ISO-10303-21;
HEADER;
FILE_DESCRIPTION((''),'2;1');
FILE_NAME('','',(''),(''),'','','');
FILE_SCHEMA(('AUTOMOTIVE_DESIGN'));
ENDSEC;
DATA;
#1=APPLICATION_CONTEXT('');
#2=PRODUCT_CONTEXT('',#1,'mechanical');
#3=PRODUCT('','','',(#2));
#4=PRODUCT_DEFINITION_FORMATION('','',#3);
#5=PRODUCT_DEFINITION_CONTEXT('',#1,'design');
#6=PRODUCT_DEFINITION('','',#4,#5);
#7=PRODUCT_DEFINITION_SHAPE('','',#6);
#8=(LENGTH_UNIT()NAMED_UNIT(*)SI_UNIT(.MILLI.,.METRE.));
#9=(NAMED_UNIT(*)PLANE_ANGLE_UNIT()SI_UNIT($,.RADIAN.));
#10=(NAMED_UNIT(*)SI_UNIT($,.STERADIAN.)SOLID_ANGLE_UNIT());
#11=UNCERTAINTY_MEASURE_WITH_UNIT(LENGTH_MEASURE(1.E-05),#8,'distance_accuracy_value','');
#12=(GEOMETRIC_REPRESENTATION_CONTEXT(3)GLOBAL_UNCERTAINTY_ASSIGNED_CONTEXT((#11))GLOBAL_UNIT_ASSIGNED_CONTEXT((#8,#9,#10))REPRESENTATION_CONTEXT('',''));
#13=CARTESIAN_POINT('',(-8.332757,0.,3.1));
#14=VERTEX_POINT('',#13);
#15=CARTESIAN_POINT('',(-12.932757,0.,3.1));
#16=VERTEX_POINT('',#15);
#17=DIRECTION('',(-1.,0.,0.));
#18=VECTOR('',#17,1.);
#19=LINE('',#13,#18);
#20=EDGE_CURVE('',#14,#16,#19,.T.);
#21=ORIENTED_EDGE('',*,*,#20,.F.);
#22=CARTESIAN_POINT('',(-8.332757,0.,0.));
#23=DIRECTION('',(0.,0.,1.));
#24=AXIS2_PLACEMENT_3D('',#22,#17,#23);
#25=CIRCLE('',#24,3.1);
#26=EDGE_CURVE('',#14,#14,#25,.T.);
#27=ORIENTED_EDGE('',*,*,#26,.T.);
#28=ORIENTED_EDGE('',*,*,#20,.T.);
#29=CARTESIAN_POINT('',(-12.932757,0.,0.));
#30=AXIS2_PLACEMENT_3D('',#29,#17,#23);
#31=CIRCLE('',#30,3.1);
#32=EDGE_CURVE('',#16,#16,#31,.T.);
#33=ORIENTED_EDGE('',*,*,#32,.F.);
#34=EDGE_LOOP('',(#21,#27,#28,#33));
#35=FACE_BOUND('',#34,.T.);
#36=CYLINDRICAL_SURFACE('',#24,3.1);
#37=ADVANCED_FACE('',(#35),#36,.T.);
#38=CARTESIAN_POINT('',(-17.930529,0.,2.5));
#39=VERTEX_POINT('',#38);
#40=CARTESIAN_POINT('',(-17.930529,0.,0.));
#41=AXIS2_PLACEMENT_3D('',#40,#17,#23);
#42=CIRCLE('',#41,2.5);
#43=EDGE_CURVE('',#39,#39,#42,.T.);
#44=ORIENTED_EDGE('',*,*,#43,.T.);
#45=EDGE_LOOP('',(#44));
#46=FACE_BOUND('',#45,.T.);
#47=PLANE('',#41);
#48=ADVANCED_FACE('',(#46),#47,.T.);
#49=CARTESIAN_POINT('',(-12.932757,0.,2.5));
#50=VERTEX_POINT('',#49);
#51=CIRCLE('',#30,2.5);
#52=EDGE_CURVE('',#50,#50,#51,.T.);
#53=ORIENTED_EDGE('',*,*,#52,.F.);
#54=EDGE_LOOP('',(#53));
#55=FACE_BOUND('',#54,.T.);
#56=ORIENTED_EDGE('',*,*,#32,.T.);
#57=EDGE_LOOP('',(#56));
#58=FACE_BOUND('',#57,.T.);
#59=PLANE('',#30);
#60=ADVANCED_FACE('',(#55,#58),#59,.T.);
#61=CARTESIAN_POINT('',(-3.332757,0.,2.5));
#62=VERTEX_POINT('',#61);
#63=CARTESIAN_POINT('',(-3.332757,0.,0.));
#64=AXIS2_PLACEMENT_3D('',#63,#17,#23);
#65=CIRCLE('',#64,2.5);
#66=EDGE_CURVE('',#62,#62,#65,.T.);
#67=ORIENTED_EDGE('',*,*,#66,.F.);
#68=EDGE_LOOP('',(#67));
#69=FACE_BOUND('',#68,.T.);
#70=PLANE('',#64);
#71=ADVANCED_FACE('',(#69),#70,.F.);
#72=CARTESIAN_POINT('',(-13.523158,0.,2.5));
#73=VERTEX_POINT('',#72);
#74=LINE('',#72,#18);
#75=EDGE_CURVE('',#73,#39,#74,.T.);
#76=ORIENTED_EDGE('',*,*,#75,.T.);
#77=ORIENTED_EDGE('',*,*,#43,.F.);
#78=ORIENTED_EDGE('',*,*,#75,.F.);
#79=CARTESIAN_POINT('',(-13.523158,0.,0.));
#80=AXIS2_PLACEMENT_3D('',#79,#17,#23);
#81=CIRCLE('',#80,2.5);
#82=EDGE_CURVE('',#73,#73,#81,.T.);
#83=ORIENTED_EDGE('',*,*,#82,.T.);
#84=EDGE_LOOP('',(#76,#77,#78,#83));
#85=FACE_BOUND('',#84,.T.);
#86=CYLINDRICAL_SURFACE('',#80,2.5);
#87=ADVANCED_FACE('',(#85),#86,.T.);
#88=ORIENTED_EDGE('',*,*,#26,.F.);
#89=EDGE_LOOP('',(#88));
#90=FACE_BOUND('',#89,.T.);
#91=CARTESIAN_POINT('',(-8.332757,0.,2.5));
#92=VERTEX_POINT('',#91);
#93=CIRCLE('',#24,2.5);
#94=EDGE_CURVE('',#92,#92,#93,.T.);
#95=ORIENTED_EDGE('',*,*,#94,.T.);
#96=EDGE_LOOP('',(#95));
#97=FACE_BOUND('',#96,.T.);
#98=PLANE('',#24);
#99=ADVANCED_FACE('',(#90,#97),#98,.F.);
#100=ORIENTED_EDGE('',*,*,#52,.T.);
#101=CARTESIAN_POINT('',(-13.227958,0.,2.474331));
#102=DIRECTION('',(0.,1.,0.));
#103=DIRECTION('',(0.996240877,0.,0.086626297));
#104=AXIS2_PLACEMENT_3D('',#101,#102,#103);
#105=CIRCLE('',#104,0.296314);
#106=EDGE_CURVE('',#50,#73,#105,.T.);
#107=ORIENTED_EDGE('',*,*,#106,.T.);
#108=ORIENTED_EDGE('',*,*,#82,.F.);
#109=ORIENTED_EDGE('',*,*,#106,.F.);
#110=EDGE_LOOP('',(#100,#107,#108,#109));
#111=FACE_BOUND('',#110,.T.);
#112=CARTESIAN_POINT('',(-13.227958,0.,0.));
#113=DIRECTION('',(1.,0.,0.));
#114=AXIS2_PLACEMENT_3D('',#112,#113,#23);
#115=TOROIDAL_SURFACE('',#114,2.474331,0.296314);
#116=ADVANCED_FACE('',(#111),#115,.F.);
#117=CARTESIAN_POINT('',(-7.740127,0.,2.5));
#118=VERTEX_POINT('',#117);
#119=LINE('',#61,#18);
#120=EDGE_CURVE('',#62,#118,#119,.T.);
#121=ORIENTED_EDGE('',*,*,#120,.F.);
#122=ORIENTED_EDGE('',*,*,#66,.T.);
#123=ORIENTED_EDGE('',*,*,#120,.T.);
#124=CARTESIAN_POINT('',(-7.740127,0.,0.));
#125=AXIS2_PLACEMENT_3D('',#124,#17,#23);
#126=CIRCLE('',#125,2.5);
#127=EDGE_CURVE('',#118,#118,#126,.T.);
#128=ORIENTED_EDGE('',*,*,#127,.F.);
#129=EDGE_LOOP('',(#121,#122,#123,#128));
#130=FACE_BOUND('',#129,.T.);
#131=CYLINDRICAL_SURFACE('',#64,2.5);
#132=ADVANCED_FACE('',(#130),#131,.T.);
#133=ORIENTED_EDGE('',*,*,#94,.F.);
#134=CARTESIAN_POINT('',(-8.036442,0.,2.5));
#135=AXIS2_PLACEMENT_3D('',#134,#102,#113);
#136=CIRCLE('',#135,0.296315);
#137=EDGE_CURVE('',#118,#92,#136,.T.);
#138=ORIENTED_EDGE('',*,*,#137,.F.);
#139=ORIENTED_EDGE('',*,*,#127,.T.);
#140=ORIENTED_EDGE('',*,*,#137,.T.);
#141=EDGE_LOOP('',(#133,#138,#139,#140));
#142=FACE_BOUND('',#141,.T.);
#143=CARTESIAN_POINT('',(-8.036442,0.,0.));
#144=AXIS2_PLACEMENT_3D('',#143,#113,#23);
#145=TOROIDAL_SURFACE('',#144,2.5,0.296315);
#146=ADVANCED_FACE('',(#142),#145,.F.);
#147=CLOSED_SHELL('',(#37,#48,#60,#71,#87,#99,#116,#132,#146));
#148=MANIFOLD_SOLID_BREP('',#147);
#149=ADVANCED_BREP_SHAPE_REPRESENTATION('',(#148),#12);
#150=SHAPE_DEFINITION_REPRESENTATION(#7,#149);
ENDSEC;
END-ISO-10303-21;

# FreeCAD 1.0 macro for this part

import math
import FreeCAD as App
import Part
import Sketcher

V = App.Vector
Q = App.Units.Quantity

doc = App.newDocument("Part")
params = doc.addObject("Spreadsheet::Sheet", "Params")
for row, (alias, value) in enumerate([
    ("sketch1_width", "4.6 mm"),
    ("sketch1_height", "2.5 mm"),
    ("sketch1_height2", "0.6 mm"),
    ("revolution_angle", "360 deg"),
], start=1):
    params.set(f"A{row}", alias)
    params.set(f"B{row}", "=" + value)
    params.setAlias(f"B{row}", alias)

body = doc.addObject("PartDesign::Body", "Body")

# Sketch on XZ plane
sketch1 = body.newObject("Sketcher::SketchObject", "Sketch")
sketch1.AttachmentSupport = (doc.getObject("XZ_Plane"), [""])
sketch1.MapMode = "FlatFace"
sketch1.addGeometry([
    Part.LineSegment(V(-13.52, 2.5, 0), V(-17.93, 2.5, 0)),  # 0
    Part.LineSegment(V(-17.93, 2.5, 0), V(-17.93, 0, 0)),  # 1
    Part.LineSegment(V(-17.93, 0, 0), V(-3.33, 0, 0)),  # 2
    Part.LineSegment(V(-3.33, 0, 0), V(-3.33, 2.5, 0)),  # 3
    Part.LineSegment(V(-3.33, 2.5, 0), V(-7.74, 2.5, 0)),  # 4
    Part.ArcOfCircle(Part.Circle(V(-8.04, 2.5, 0), V(0, 0, 1), 0.3), math.radians(180), math.radians(360)),  # 5
    Part.LineSegment(V(-8.33, 2.5, 0), V(-8.33, 3.1, 0)),  # 6
    Part.LineSegment(V(-8.33, 3.1, 0), V(-12.93, 3.1, 0)),  # 7
    Part.LineSegment(V(-12.93, 3.1, 0), V(-12.93, 2.5, 0)),  # 8
    Part.ArcOfCircle(Part.Circle(V(-13.23, 2.47, 0), V(0, 0, 1), 0.3), math.radians(175), math.radians(365)),  # 9
], False)
sketch1.addConstraint([
    Sketcher.Constraint("Coincident", 0, 2, 1, 1),
    Sketcher.Constraint("Coincident", 1, 2, 2, 1),
    Sketcher.Constraint("Coincident", 2, 2, 3, 1),
    Sketcher.Constraint("Coincident", 3, 2, 4, 1),
    Sketcher.Constraint("Coincident", 4, 2, 5, 2),
    Sketcher.Constraint("Tangent", 5, 1, 6, 1),
    Sketcher.Constraint("Coincident", 6, 2, 7, 1),
    Sketcher.Constraint("Coincident", 7, 2, 8, 1),
    Sketcher.Constraint("Coincident", 8, 2, 9, 2),
    Sketcher.Constraint("Coincident", 9, 1, 0, 1),
    Sketcher.Constraint("Horizontal", 0),
    Sketcher.Constraint("Vertical", 1),
    Sketcher.Constraint("Horizontal", 2),
    Sketcher.Constraint("Vertical", 3),
    Sketcher.Constraint("Horizontal", 4),
    Sketcher.Constraint("Vertical", 6),
    Sketcher.Constraint("Horizontal", 7),
    Sketcher.Constraint("Vertical", 8),
    Sketcher.Constraint("Equal", 5, 9),
    Sketcher.Constraint("PointOnObject", 1, 2, -1),
    Sketcher.Constraint("Horizontal", 5, 3, 0, 2),
    Sketcher.Constraint("Horizontal", 0, 2, 3, 2),
    Sketcher.Constraint("Horizontal", 5, 1, 8, 2),
    Sketcher.Constraint("Equal", 0, 4),
    Sketcher.Constraint("DistanceX", 7, 2, 7, 1, Q("4.6 mm")),
    Sketcher.Constraint("DistanceY", 1, 2, 1, 1, Q("2.5 mm")),
    Sketcher.Constraint("DistanceY", 6, 1, 6, 2, Q("0.6 mm")),
    Sketcher.Constraint("DistanceX", 5, 1, 3, 2, Q("5 mm")),
    Sketcher.Constraint("Radius", 5, Q("0.296315 mm")),
    Sketcher.Constraint("DistanceX", 2, 1, 2, 2, Q("14.597772 mm")),
    Sketcher.Constraint("DistanceX", 5, 3, -1, 1, Q("8.036442 mm")),
])
sketch1.setExpression("Constraints[24]", "Params.sketch1_width")
sketch1.setExpression("Constraints[25]", "Params.sketch1_height")
sketch1.setExpression("Constraints[26]", "Params.sketch1_height2")
revolution = body.newObject("PartDesign::Revolution", "Revolution")
revolution.Profile = sketch1
revolution.ReferenceAxis = (sketch1, ["H_Axis"])
revolution.setExpression("Angle", "Params.revolution_angle")

doc.recompute()
